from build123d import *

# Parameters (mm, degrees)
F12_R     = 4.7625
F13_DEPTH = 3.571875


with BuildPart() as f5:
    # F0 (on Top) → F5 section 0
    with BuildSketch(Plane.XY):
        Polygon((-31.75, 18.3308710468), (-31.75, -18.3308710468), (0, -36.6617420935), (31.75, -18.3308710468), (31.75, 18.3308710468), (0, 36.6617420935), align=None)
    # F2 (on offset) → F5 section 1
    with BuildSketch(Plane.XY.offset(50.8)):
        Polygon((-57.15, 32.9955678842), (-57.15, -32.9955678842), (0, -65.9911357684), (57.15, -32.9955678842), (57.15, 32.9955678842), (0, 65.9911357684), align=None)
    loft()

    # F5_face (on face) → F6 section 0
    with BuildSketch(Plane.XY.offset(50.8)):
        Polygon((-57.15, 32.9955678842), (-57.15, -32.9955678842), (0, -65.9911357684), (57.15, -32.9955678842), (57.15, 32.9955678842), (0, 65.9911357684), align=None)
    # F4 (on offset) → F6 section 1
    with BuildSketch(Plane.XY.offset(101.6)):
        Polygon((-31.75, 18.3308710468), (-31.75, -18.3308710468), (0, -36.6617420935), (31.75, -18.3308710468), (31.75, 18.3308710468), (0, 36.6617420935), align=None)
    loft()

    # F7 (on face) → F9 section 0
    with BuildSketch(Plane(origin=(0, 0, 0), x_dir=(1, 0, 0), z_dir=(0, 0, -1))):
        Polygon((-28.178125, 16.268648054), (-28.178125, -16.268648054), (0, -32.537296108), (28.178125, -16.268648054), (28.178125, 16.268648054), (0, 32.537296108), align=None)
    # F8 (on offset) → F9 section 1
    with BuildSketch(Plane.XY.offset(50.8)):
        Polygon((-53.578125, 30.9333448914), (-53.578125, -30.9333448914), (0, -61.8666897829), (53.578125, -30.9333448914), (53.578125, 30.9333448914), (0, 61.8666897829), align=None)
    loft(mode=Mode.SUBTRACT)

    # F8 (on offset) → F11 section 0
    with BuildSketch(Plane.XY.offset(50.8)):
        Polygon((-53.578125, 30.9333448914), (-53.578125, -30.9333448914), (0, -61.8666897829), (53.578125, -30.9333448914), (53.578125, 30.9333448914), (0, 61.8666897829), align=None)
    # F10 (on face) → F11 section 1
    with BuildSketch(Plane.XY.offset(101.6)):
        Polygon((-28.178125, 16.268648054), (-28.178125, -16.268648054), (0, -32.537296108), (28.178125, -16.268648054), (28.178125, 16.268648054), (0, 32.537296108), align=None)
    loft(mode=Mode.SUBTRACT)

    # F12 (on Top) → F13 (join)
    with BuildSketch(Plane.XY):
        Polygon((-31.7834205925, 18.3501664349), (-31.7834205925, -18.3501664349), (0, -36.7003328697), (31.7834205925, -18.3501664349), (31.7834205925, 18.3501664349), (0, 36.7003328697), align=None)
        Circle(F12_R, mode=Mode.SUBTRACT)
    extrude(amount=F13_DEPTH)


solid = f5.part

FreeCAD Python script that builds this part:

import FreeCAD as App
import Part
import Sketcher
Q = App.Units.Quantity

doc = App.newDocument("Part")
params = doc.addObject("Spreadsheet::Sheet", "Params")
for row, (alias, value) in enumerate([
    ("sketch9_diameter", "0.375 in"),
    ("pad1_length", "0.140625 in"),
], start=1):
    params.set(f"A{row}", alias)
    params.set(f"B{row}", "=" + value)
    params.setAlias(f"B{row}", alias)

body = doc.addObject("PartDesign::Body", "Body")

# Sketch on XY plane
sketch1 = doc.addObject("Sketcher::SketchObject", "Sketch")
body.addObject(sketch1)
sketch1.AttachmentSupport = (doc.XY_Plane, [""])
sketch1.MapMode = "FlatFace"
sketch1.addGeometry(Part.LineSegment(App.Vector(-31.75, 18.330871, 0), App.Vector(-31.75, -18.330871, 0)), False)
sketch1.addGeometry(Part.LineSegment(App.Vector(-31.75, -18.330871, 0), App.Vector(0, -36.661742, 0)), False)
sketch1.addGeometry(Part.LineSegment(App.Vector(0, -36.661742, 0), App.Vector(31.75, -18.330871, 0)), False)
sketch1.addGeometry(Part.LineSegment(App.Vector(31.75, -18.330871, 0), App.Vector(31.75, 18.330871, 0)), False)
sketch1.addGeometry(Part.LineSegment(App.Vector(31.75, 18.330871, 0), App.Vector(0, 36.661742, 0)), False)
sketch1.addGeometry(Part.LineSegment(App.Vector(0, 36.661742, 0), App.Vector(-31.75, 18.330871, 0)), False)
sketch1.addConstraint(Sketcher.Constraint("Coincident", 0, 2, 1, 1))
sketch1.addConstraint(Sketcher.Constraint("Coincident", 1, 2, 2, 1))
sketch1.addConstraint(Sketcher.Constraint("Coincident", 2, 2, 3, 1))
sketch1.addConstraint(Sketcher.Constraint("Coincident", 3, 2, 4, 1))
sketch1.addConstraint(Sketcher.Constraint("Coincident", 4, 2, 5, 1))
sketch1.addConstraint(Sketcher.Constraint("Coincident", 5, 2, 0, 1))
sketch1.addConstraint(Sketcher.Constraint("Vertical", 0))
sketch1.addConstraint(Sketcher.Constraint("Vertical", 3))
sketch1.addConstraint(Sketcher.Constraint("Symmetric", 0, 2, 3, 2, -1, 1))
sketch1.addConstraint(Sketcher.Constraint("Symmetric", 1, 2, 4, 2, -1, 1))
sketch1.addConstraint(Sketcher.Constraint("PointOnObject", 1, 2, -2))
sketch1.addConstraint(Sketcher.Constraint("Parallel", 2, 5))
sketch1.addConstraint(Sketcher.Constraint("Horizontal", 0, 2, 2, 2))
sketch1.addConstraint(Sketcher.Constraint("Angle", 1, Q("-30 deg")))
sketch1.addConstraint(Sketcher.Constraint("DistanceX", 0, 2, 2, 2, Q("2.5 in")))
sketch1.addConstraint(Sketcher.Constraint("DistanceY", 0, 2, 0, 1, Q("36.661742 mm")))

# Sketch on XY plane
sketch2 = doc.addObject("Sketcher::SketchObject", "Sketch001")
body.addObject(sketch2)
sketch2.AttachmentSupport = (doc.XY_Plane, [""])
sketch2.MapMode = "FlatFace"
sketch2.AttachmentOffset = App.Placement(App.Vector(0, 0, 2 * 25.4), App.Rotation())
sketch2.addGeometry(Part.LineSegment(App.Vector(-57.15, 32.995568, 0), App.Vector(-57.15, -32.995568, 0)), False)
sketch2.addGeometry(Part.LineSegment(App.Vector(-57.15, -32.995568, 0), App.Vector(0, -65.991136, 0)), False)
sketch2.addGeometry(Part.LineSegment(App.Vector(0, -65.991136, 0), App.Vector(57.15, -32.995568, 0)), False)
sketch2.addGeometry(Part.LineSegment(App.Vector(57.15, -32.995568, 0), App.Vector(57.15, 32.995568, 0)), False)
sketch2.addGeometry(Part.LineSegment(App.Vector(57.15, 32.995568, 0), App.Vector(0, 65.991136, 0)), False)
sketch2.addGeometry(Part.LineSegment(App.Vector(0, 65.991136, 0), App.Vector(-57.15, 32.995568, 0)), False)
sketch2.addConstraint(Sketcher.Constraint("Coincident", 0, 2, 1, 1))
sketch2.addConstraint(Sketcher.Constraint("Coincident", 1, 2, 2, 1))
sketch2.addConstraint(Sketcher.Constraint("Coincident", 2, 2, 3, 1))
sketch2.addConstraint(Sketcher.Constraint("Coincident", 3, 2, 4, 1))
sketch2.addConstraint(Sketcher.Constraint("Coincident", 4, 2, 5, 1))
sketch2.addConstraint(Sketcher.Constraint("Coincident", 5, 2, 0, 1))
sketch2.addConstraint(Sketcher.Constraint("Vertical", 0))
sketch2.addConstraint(Sketcher.Constraint("Vertical", 3))
sketch2.addConstraint(Sketcher.Constraint("Symmetric", 0, 2, 3, 2, -1, 1))
sketch2.addConstraint(Sketcher.Constraint("Symmetric", 1, 2, 4, 2, -1, 1))
sketch2.addConstraint(Sketcher.Constraint("PointOnObject", 1, 2, -2))
sketch2.addConstraint(Sketcher.Constraint("Parallel", 2, 5))
sketch2.addConstraint(Sketcher.Constraint("Horizontal", 0, 2, 2, 2))
sketch2.addConstraint(Sketcher.Constraint("Angle", 1, Q("-30 deg")))
sketch2.addConstraint(Sketcher.Constraint("DistanceX", 0, 2, 2, 2, Q("4.5 in")))
sketch2.addConstraint(Sketcher.Constraint("DistanceY", 0, 2, 0, 1, Q("65.991136 mm")))

additiveloft = doc.addObject("PartDesign::AdditiveLoft", "AdditiveLoft")
body.addObject(additiveloft)
additiveloft.Profile = sketch1
additiveloft.Sections = [sketch2]

# Sketch on XY plane
sketch3 = doc.addObject("Sketcher::SketchObject", "Sketch002")
body.addObject(sketch3)
sketch3.AttachmentSupport = (doc.XY_Plane, [""])
sketch3.MapMode = "FlatFace"
sketch3.AttachmentOffset = App.Placement(App.Vector(0, 0, 2 * 25.4), App.Rotation())
sketch3.addGeometry(Part.LineSegment(App.Vector(-57.15, 32.995568, 0), App.Vector(-57.15, -32.995568, 0)), False)
sketch3.addGeometry(Part.LineSegment(App.Vector(-57.15, -32.995568, 0), App.Vector(0, -65.991136, 0)), False)
sketch3.addGeometry(Part.LineSegment(App.Vector(0, -65.991136, 0), App.Vector(57.15, -32.995568, 0)), False)
sketch3.addGeometry(Part.LineSegment(App.Vector(57.15, -32.995568, 0), App.Vector(57.15, 32.995568, 0)), False)
sketch3.addGeometry(Part.LineSegment(App.Vector(57.15, 32.995568, 0), App.Vector(0, 65.991136, 0)), False)
sketch3.addGeometry(Part.LineSegment(App.Vector(0, 65.991136, 0), App.Vector(-57.15, 32.995568, 0)), False)
sketch3.addConstraint(Sketcher.Constraint("Coincident", 0, 2, 1, 1))
sketch3.addConstraint(Sketcher.Constraint("Coincident", 1, 2, 2, 1))
sketch3.addConstraint(Sketcher.Constraint("Coincident", 2, 2, 3, 1))
sketch3.addConstraint(Sketcher.Constraint("Coincident", 3, 2, 4, 1))
sketch3.addConstraint(Sketcher.Constraint("Coincident", 4, 2, 5, 1))
sketch3.addConstraint(Sketcher.Constraint("Coincident", 5, 2, 0, 1))
sketch3.addConstraint(Sketcher.Constraint("Vertical", 0))
sketch3.addConstraint(Sketcher.Constraint("Vertical", 3))
sketch3.addConstraint(Sketcher.Constraint("Symmetric", 0, 2, 3, 2, -1, 1))
sketch3.addConstraint(Sketcher.Constraint("Symmetric", 1, 2, 4, 2, -1, 1))
sketch3.addConstraint(Sketcher.Constraint("PointOnObject", 1, 2, -2))
sketch3.addConstraint(Sketcher.Constraint("Parallel", 2, 5))
sketch3.addConstraint(Sketcher.Constraint("Horizontal", 0, 2, 2, 2))
sketch3.addConstraint(Sketcher.Constraint("Angle", 1, Q("-30 deg")))
sketch3.addConstraint(Sketcher.Constraint("DistanceX", 0, 2, 2, 2, Q("4.5 in")))
sketch3.addConstraint(Sketcher.Constraint("DistanceY", 0, 2, 0, 1, Q("65.991136 mm")))

# Sketch on XY plane
sketch4 = doc.addObject("Sketcher::SketchObject", "Sketch003")
body.addObject(sketch4)
sketch4.AttachmentSupport = (doc.XY_Plane, [""])
sketch4.MapMode = "FlatFace"
sketch4.AttachmentOffset = App.Placement(App.Vector(0, 0, 4 * 25.4), App.Rotation())
sketch4.addGeometry(Part.LineSegment(App.Vector(-31.75, 18.330871, 0), App.Vector(-31.75, -18.330871, 0)), False)
sketch4.addGeometry(Part.LineSegment(App.Vector(-31.75, -18.330871, 0), App.Vector(0, -36.661742, 0)), False)
sketch4.addGeometry(Part.LineSegment(App.Vector(0, -36.661742, 0), App.Vector(31.75, -18.330871, 0)), False)
sketch4.addGeometry(Part.LineSegment(App.Vector(31.75, -18.330871, 0), App.Vector(31.75, 18.330871, 0)), False)
sketch4.addGeometry(Part.LineSegment(App.Vector(31.75, 18.330871, 0), App.Vector(0, 36.661742, 0)), False)
sketch4.addGeometry(Part.LineSegment(App.Vector(0, 36.661742, 0), App.Vector(-31.75, 18.330871, 0)), False)
sketch4.addConstraint(Sketcher.Constraint("Coincident", 0, 2, 1, 1))
sketch4.addConstraint(Sketcher.Constraint("Coincident", 1, 2, 2, 1))
sketch4.addConstraint(Sketcher.Constraint("Coincident", 2, 2, 3, 1))
sketch4.addConstraint(Sketcher.Constraint("Coincident", 3, 2, 4, 1))
sketch4.addConstraint(Sketcher.Constraint("Coincident", 4, 2, 5, 1))
sketch4.addConstraint(Sketcher.Constraint("Coincident", 5, 2, 0, 1))
sketch4.addConstraint(Sketcher.Constraint("Vertical", 0))
sketch4.addConstraint(Sketcher.Constraint("Vertical", 3))
sketch4.addConstraint(Sketcher.Constraint("Symmetric", 0, 2, 3, 2, -1, 1))
sketch4.addConstraint(Sketcher.Constraint("Symmetric", 1, 2, 4, 2, -1, 1))
sketch4.addConstraint(Sketcher.Constraint("PointOnObject", 1, 2, -2))
sketch4.addConstraint(Sketcher.Constraint("Parallel", 2, 5))
sketch4.addConstraint(Sketcher.Constraint("Horizontal", 0, 2, 2, 2))
sketch4.addConstraint(Sketcher.Constraint("Angle", 1, Q("-30 deg")))
sketch4.addConstraint(Sketcher.Constraint("DistanceX", 0, 2, 2, 2, Q("2.5 in")))
sketch4.addConstraint(Sketcher.Constraint("DistanceY", 0, 2, 0, 1, Q("36.661742 mm")))

additiveloft2 = doc.addObject("PartDesign::AdditiveLoft", "AdditiveLoft001")
body.addObject(additiveloft2)
additiveloft2.Profile = sketch3
additiveloft2.Sections = [sketch4]

# Sketch on XY plane
sketch5 = doc.addObject("Sketcher::SketchObject", "Sketch004")
body.addObject(sketch5)
sketch5.AttachmentSupport = (doc.XY_Plane, [""])
sketch5.MapMode = "FlatFace"
sketch5.addGeometry(Part.LineSegment(App.Vector(-28.178125, -16.268648, 0), App.Vector(-28.178125, 16.268648, 0)), False)
sketch5.addGeometry(Part.LineSegment(App.Vector(-28.178125, 16.268648, 0), App.Vector(0, 32.537296, 0)), False)
sketch5.addGeometry(Part.LineSegment(App.Vector(0, 32.537296, 0), App.Vector(28.178125, 16.268648, 0)), False)
sketch5.addGeometry(Part.LineSegment(App.Vector(28.178125, 16.268648, 0), App.Vector(28.178125, -16.268648, 0)), False)
sketch5.addGeometry(Part.LineSegment(App.Vector(28.178125, -16.268648, 0), App.Vector(0, -32.537296, 0)), False)
sketch5.addGeometry(Part.LineSegment(App.Vector(0, -32.537296, 0), App.Vector(-28.178125, -16.268648, 0)), False)
sketch5.addConstraint(Sketcher.Constraint("Coincident", 0, 2, 1, 1))
sketch5.addConstraint(Sketcher.Constraint("Coincident", 1, 2, 2, 1))
sketch5.addConstraint(Sketcher.Constraint("Coincident", 2, 2, 3, 1))
sketch5.addConstraint(Sketcher.Constraint("Coincident", 3, 2, 4, 1))
sketch5.addConstraint(Sketcher.Constraint("Coincident", 4, 2, 5, 1))
sketch5.addConstraint(Sketcher.Constraint("Coincident", 5, 2, 0, 1))
sketch5.addConstraint(Sketcher.Constraint("Vertical", 0))
sketch5.addConstraint(Sketcher.Constraint("Vertical", 3))
sketch5.addConstraint(Sketcher.Constraint("Symmetric", 0, 2, 3, 2, -1, 1))
sketch5.addConstraint(Sketcher.Constraint("Symmetric", 1, 2, 4, 2, -1, 1))
sketch5.addConstraint(Sketcher.Constraint("PointOnObject", 1, 2, -2))
sketch5.addConstraint(Sketcher.Constraint("Parallel", 2, 5))
sketch5.addConstraint(Sketcher.Constraint("Horizontal", 0, 2, 2, 2))
sketch5.addConstraint(Sketcher.Constraint("Angle", 1, Q("30 deg")))
sketch5.addConstraint(Sketcher.Constraint("DistanceX", 0, 2, -1, 1, Q("1.109375 in")))
sketch5.addConstraint(Sketcher.Constraint("DistanceY", 0, 1, 0, 2, Q("32.537296 mm")))

# Sketch on XY plane
sketch6 = doc.addObject("Sketcher::SketchObject", "Sketch005")
body.addObject(sketch6)
sketch6.AttachmentSupport = (doc.XY_Plane, [""])
sketch6.MapMode = "FlatFace"
sketch6.AttachmentOffset = App.Placement(App.Vector(0, 0, 2 * 25.4), App.Rotation())
sketch6.addGeometry(Part.LineSegment(App.Vector(-53.578125, 30.933345, 0), App.Vector(-53.578125, -30.933345, 0)), False)
sketch6.addGeometry(Part.LineSegment(App.Vector(-53.578125, -30.933345, 0), App.Vector(0, -61.86669, 0)), False)
sketch6.addGeometry(Part.LineSegment(App.Vector(0, -61.86669, 0), App.Vector(53.578125, -30.933345, 0)), False)
sketch6.addGeometry(Part.LineSegment(App.Vector(53.578125, -30.933345, 0), App.Vector(53.578125, 30.933345, 0)), False)
sketch6.addGeometry(Part.LineSegment(App.Vector(53.578125, 30.933345, 0), App.Vector(0, 61.86669, 0)), False)
sketch6.addGeometry(Part.LineSegment(App.Vector(0, 61.86669, 0), App.Vector(-53.578125, 30.933345, 0)), False)
sketch6.addConstraint(Sketcher.Constraint("Coincident", 0, 2, 1, 1))
sketch6.addConstraint(Sketcher.Constraint("Coincident", 1, 2, 2, 1))
sketch6.addConstraint(Sketcher.Constraint("Coincident", 2, 2, 3, 1))
sketch6.addConstraint(Sketcher.Constraint("Coincident", 3, 2, 4, 1))
sketch6.addConstraint(Sketcher.Constraint("Coincident", 4, 2, 5, 1))
sketch6.addConstraint(Sketcher.Constraint("Coincident", 5, 2, 0, 1))
sketch6.addConstraint(Sketcher.Constraint("Vertical", 0))
sketch6.addConstraint(Sketcher.Constraint("Vertical", 3))
sketch6.addConstraint(Sketcher.Constraint("Symmetric", 0, 2, 3, 2, -1, 1))
sketch6.addConstraint(Sketcher.Constraint("Symmetric", 1, 2, 4, 2, -1, 1))
sketch6.addConstraint(Sketcher.Constraint("PointOnObject", 1, 2, -2))
sketch6.addConstraint(Sketcher.Constraint("Parallel", 2, 5))
sketch6.addConstraint(Sketcher.Constraint("Horizontal", 0, 2, 2, 2))
sketch6.addConstraint(Sketcher.Constraint("Angle", 1, Q("-30 deg")))
sketch6.addConstraint(Sketcher.Constraint("DistanceX", 0, 2, -1, 1, Q("2.109375 in")))
sketch6.addConstraint(Sketcher.Constraint("DistanceY", 0, 2, 0, 1, Q("61.86669 mm")))

subtractiveloft = doc.addObject("PartDesign::SubtractiveLoft", "SubtractiveLoft")
body.addObject(subtractiveloft)
subtractiveloft.Profile = sketch5
subtractiveloft.Sections = [sketch6]

# Sketch on XY plane
sketch7 = doc.addObject("Sketcher::SketchObject", "Sketch006")
body.addObject(sketch7)
sketch7.AttachmentSupport = (doc.XY_Plane, [""])
sketch7.MapMode = "FlatFace"
sketch7.AttachmentOffset = App.Placement(App.Vector(0, 0, 2 * 25.4), App.Rotation())
sketch7.addGeometry(Part.LineSegment(App.Vector(-53.578125, 30.933345, 0), App.Vector(-53.578125, -30.933345, 0)), False)
sketch7.addGeometry(Part.LineSegment(App.Vector(-53.578125, -30.933345, 0), App.Vector(0, -61.86669, 0)), False)
sketch7.addGeometry(Part.LineSegment(App.Vector(0, -61.86669, 0), App.Vector(53.578125, -30.933345, 0)), False)
sketch7.addGeometry(Part.LineSegment(App.Vector(53.578125, -30.933345, 0), App.Vector(53.578125, 30.933345, 0)), False)
sketch7.addGeometry(Part.LineSegment(App.Vector(53.578125, 30.933345, 0), App.Vector(0, 61.86669, 0)), False)
sketch7.addGeometry(Part.LineSegment(App.Vector(0, 61.86669, 0), App.Vector(-53.578125, 30.933345, 0)), False)
sketch7.addConstraint(Sketcher.Constraint("Coincident", 0, 2, 1, 1))
sketch7.addConstraint(Sketcher.Constraint("Coincident", 1, 2, 2, 1))
sketch7.addConstraint(Sketcher.Constraint("Coincident", 2, 2, 3, 1))
sketch7.addConstraint(Sketcher.Constraint("Coincident", 3, 2, 4, 1))
sketch7.addConstraint(Sketcher.Constraint("Coincident", 4, 2, 5, 1))
sketch7.addConstraint(Sketcher.Constraint("Coincident", 5, 2, 0, 1))
sketch7.addConstraint(Sketcher.Constraint("Vertical", 0))
sketch7.addConstraint(Sketcher.Constraint("Vertical", 3))
sketch7.addConstraint(Sketcher.Constraint("Symmetric", 0, 2, 3, 2, -1, 1))
sketch7.addConstraint(Sketcher.Constraint("Symmetric", 1, 2, 4, 2, -1, 1))
sketch7.addConstraint(Sketcher.Constraint("PointOnObject", 1, 2, -2))
sketch7.addConstraint(Sketcher.Constraint("Parallel", 2, 5))
sketch7.addConstraint(Sketcher.Constraint("Horizontal", 0, 2, 2, 2))
sketch7.addConstraint(Sketcher.Constraint("Angle", 1, Q("-30 deg")))
sketch7.addConstraint(Sketcher.Constraint("DistanceX", 0, 2, -1, 1, Q("2.109375 in")))
sketch7.addConstraint(Sketcher.Constraint("DistanceY", 0, 2, 0, 1, Q("61.86669 mm")))

# Sketch on XY plane
sketch8 = doc.addObject("Sketcher::SketchObject", "Sketch007")
body.addObject(sketch8)
sketch8.AttachmentSupport = (doc.XY_Plane, [""])
sketch8.MapMode = "FlatFace"
sketch8.AttachmentOffset = App.Placement(App.Vector(0, 0, 4 * 25.4), App.Rotation())
sketch8.addGeometry(Part.LineSegment(App.Vector(-28.178125, 16.268648, 0), App.Vector(-28.178125, -16.268648, 0)), False)
sketch8.addGeometry(Part.LineSegment(App.Vector(-28.178125, -16.268648, 0), App.Vector(0, -32.537296, 0)), False)
sketch8.addGeometry(Part.LineSegment(App.Vector(0, -32.537296, 0), App.Vector(28.178125, -16.268648, 0)), False)
sketch8.addGeometry(Part.LineSegment(App.Vector(28.178125, -16.268648, 0), App.Vector(28.178125, 16.268648, 0)), False)
sketch8.addGeometry(Part.LineSegment(App.Vector(28.178125, 16.268648, 0), App.Vector(0, 32.537296, 0)), False)
sketch8.addGeometry(Part.LineSegment(App.Vector(0, 32.537296, 0), App.Vector(-28.178125, 16.268648, 0)), False)
sketch8.addConstraint(Sketcher.Constraint("Coincident", 0, 2, 1, 1))
sketch8.addConstraint(Sketcher.Constraint("Coincident", 1, 2, 2, 1))
sketch8.addConstraint(Sketcher.Constraint("Coincident", 2, 2, 3, 1))
sketch8.addConstraint(Sketcher.Constraint("Coincident", 3, 2, 4, 1))
sketch8.addConstraint(Sketcher.Constraint("Coincident", 4, 2, 5, 1))
sketch8.addConstraint(Sketcher.Constraint("Coincident", 5, 2, 0, 1))
sketch8.addConstraint(Sketcher.Constraint("Vertical", 0))
sketch8.addConstraint(Sketcher.Constraint("Vertical", 3))
sketch8.addConstraint(Sketcher.Constraint("Symmetric", 0, 2, 3, 2, -1, 1))
sketch8.addConstraint(Sketcher.Constraint("Symmetric", 1, 2, 4, 2, -1, 1))
sketch8.addConstraint(Sketcher.Constraint("PointOnObject", 1, 2, -2))
sketch8.addConstraint(Sketcher.Constraint("Parallel", 2, 5))
sketch8.addConstraint(Sketcher.Constraint("Horizontal", 0, 2, 2, 2))
sketch8.addConstraint(Sketcher.Constraint("Angle", 1, Q("-30 deg")))
sketch8.addConstraint(Sketcher.Constraint("DistanceX", 0, 2, -1, 1, Q("1.109375 in")))
sketch8.addConstraint(Sketcher.Constraint("DistanceY", 0, 2, 0, 1, Q("32.537296 mm")))

subtractiveloft2 = doc.addObject("PartDesign::SubtractiveLoft", "SubtractiveLoft001")
body.addObject(subtractiveloft2)
subtractiveloft2.Profile = sketch7
subtractiveloft2.Sections = [sketch8]

# Sketch on XY plane
sketch9 = doc.addObject("Sketcher::SketchObject", "Sketch008")
body.addObject(sketch9)
sketch9.AttachmentSupport = (doc.XY_Plane, [""])
sketch9.MapMode = "FlatFace"
sketch9.addGeometry(Part.LineSegment(App.Vector(-31.783421, 18.350166, 0), App.Vector(-31.783421, -18.350166, 0)), False)
sketch9.addGeometry(Part.LineSegment(App.Vector(-31.783421, -18.350166, 0), App.Vector(0, -36.700333, 0)), False)
sketch9.addGeometry(Part.LineSegment(App.Vector(0, -36.700333, 0), App.Vector(31.783421, -18.350166, 0)), False)
sketch9.addGeometry(Part.LineSegment(App.Vector(31.783421, -18.350166, 0), App.Vector(31.783421, 18.350166, 0)), False)
sketch9.addGeometry(Part.LineSegment(App.Vector(31.783421, 18.350166, 0), App.Vector(0, 36.700333, 0)), False)
sketch9.addGeometry(Part.LineSegment(App.Vector(0, 36.700333, 0), App.Vector(-31.783421, 18.350166, 0)), False)
sketch9.addGeometry(Part.Circle(App.Vector(0, 0, 0), App.Vector(0, 0, 1), 4.7625), False)
sketch9.addConstraint(Sketcher.Constraint("Coincident", 0, 2, 1, 1))
sketch9.addConstraint(Sketcher.Constraint("Coincident", 1, 2, 2, 1))
sketch9.addConstraint(Sketcher.Constraint("Coincident", 2, 2, 3, 1))
sketch9.addConstraint(Sketcher.Constraint("Coincident", 3, 2, 4, 1))
sketch9.addConstraint(Sketcher.Constraint("Coincident", 4, 2, 5, 1))
sketch9.addConstraint(Sketcher.Constraint("Coincident", 5, 2, 0, 1))
sketch9.addConstraint(Sketcher.Constraint("Vertical", 0))
sketch9.addConstraint(Sketcher.Constraint("Vertical", 3))
sketch9.addConstraint(Sketcher.Constraint("Coincident", 6, 3, -1, 1))
sketch9.addConstraint(Sketcher.Constraint("Symmetric", 0, 2, 3, 2, -1, 1))
sketch9.addConstraint(Sketcher.Constraint("Symmetric", 1, 2, 4, 2, -1, 1))
sketch9.addConstraint(Sketcher.Constraint("PointOnObject", 1, 2, -2))
sketch9.addConstraint(Sketcher.Constraint("Parallel", 2, 5))
sketch9.addConstraint(Sketcher.Constraint("Horizontal", 0, 2, 2, 2))
sketch9.addConstraint(Sketcher.Constraint("Diameter", 6, Q("0.375 in")))
sketch9.addConstraint(Sketcher.Constraint("Angle", 1, Q("-30 deg")))
sketch9.addConstraint(Sketcher.Constraint("DistanceY", 1, 2, 3, 2, Q("55.050499 mm")))
sketch9.addConstraint(Sketcher.Constraint("DistanceY", 0, 2, 0, 1, Q("36.700333 mm")))
sketch9.setExpression("Constraints[14]", "Params.sketch9_diameter")
pad1 = doc.addObject("PartDesign::Pad", "Pad")
body.addObject(pad1)
pad1.Profile = sketch9
pad1.setExpression("Length", "Params.pad1_length")

doc.recompute()
